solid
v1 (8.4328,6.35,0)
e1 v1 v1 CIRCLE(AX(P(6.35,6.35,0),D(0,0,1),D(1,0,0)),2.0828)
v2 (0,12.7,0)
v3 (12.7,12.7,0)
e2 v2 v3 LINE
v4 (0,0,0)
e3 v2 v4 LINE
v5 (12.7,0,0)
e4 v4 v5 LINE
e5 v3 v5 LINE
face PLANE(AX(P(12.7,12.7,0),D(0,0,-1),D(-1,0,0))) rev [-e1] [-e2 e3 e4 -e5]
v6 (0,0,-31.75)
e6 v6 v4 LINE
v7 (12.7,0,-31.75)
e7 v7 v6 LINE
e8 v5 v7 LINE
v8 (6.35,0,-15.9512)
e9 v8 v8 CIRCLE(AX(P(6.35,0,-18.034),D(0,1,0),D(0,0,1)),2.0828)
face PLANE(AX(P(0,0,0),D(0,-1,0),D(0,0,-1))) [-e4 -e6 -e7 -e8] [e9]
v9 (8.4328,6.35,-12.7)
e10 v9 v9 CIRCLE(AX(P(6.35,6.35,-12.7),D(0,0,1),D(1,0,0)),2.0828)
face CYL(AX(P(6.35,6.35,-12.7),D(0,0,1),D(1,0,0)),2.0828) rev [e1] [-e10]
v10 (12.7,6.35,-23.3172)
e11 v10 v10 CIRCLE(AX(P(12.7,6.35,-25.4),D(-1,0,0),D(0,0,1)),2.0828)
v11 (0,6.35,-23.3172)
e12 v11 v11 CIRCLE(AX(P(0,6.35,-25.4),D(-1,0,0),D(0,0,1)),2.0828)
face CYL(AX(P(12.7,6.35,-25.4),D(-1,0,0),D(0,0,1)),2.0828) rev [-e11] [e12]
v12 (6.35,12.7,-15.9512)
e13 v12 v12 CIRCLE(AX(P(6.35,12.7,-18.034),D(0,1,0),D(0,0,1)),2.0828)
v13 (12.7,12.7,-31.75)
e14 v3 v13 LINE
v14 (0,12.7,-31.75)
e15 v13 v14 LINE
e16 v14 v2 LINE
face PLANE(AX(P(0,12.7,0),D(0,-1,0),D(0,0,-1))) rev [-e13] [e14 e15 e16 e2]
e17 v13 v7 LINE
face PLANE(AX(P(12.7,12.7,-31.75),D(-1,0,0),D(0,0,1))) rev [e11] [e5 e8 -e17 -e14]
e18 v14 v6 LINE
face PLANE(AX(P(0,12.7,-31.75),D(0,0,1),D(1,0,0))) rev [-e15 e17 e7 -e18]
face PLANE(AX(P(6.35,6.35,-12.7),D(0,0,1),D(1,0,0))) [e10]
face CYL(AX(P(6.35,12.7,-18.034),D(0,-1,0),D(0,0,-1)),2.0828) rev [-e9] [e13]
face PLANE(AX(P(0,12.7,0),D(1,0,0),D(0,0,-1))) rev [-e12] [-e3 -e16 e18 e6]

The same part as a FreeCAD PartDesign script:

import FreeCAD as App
import Part
import Sketcher

V = App.Vector
Q = App.Units.Quantity

doc = App.newDocument("Part")
body = doc.addObject("PartDesign::Body", "Body")

# Sketch on XZ plane
sketch1 = doc.addObject("Sketcher::SketchObject", "Sketch")
body.addObject(sketch1)
sketch1.AttachmentSupport = (doc.XZ_Plane, [""])
sketch1.MapMode = "FlatFace"
sketch1.addGeometry([
    Part.LineSegment(V(0, -31.75, 0), V(0, 0, 0)),  # 0
    Part.LineSegment(V(0, 0, 0), V(12.7, 0, 0)),  # 1
    Part.LineSegment(V(12.7, 0, 0), V(12.7, -31.75, 0)),  # 2
    Part.LineSegment(V(12.7, -31.75, 0), V(0, -31.75, 0)),  # 3
    Part.Circle(V(6.35, -18.034, 0), V(0, 0, 1), 2.0828),  # 4
], False)
sketch1.addConstraint([
    Sketcher.Constraint("Coincident", 0, 2, 1, 1),
    Sketcher.Constraint("Coincident", 1, 2, 2, 1),
    Sketcher.Constraint("Coincident", 2, 2, 3, 1),
    Sketcher.Constraint("Coincident", 3, 2, 0, 1),
    Sketcher.Constraint("Vertical", 0),
    Sketcher.Constraint("Horizontal", 1),
    Sketcher.Constraint("Vertical", 2),
    Sketcher.Constraint("Horizontal", 3),
    Sketcher.Constraint("Coincident", 0, 2, -1, 1),
    Sketcher.Constraint("Diameter", 4, Q("0.164 in")),
    Sketcher.Constraint("DistanceX", 1, 1, 1, 2, Q("0.5 in")),
    Sketcher.Constraint("DistanceY", 0, 1, 0, 2, Q("1.25 in")),
    Sketcher.Constraint("DistanceX", -1, 1, 4, 3, Q("0.25 in")),
    Sketcher.Constraint("DistanceY", 4, 3, -1, 1, Q("0.71 in")),
])
pad1 = doc.addObject("PartDesign::Pad", "Pad")
body.addObject(pad1)
pad1.Profile = sketch1
pad1.Length = Q("0.5 in")
pad1.Reversed = True

# Sketch on XY plane
sketch2 = doc.addObject("Sketcher::SketchObject", "Sketch001")
body.addObject(sketch2)
sketch2.AttachmentSupport = (doc.XY_Plane, [""])
sketch2.MapMode = "FlatFace"
sketch2.addGeometry(Part.Circle(V(6.35, 6.35, 0), V(0, 0, 1), 2.0828), False)
sketch2.addConstraint([
    Sketcher.Constraint("Diameter", 0, Q("0.164 in")),
    Sketcher.Constraint("DistanceX", -1, 1, 0, 3, Q("0.25 in")),
    Sketcher.Constraint("DistanceY", -1, 1, 0, 3, Q("0.25 in")),
])
pocket1 = doc.addObject("PartDesign::Pocket", "Pocket")
body.addObject(pocket1)
pocket1.Profile = sketch2
pocket1.Length = Q("0.5 in")

# Sketch on YZ plane
sketch3 = doc.addObject("Sketcher::SketchObject", "Sketch002")
body.addObject(sketch3)
sketch3.AttachmentSupport = (doc.YZ_Plane, [""])
sketch3.MapMode = "FlatFace"
sketch3.addGeometry(Part.Circle(V(6.35, -25.4, 0), V(0, 0, 1), 2.0828), False)
sketch3.addConstraint([
    Sketcher.Constraint("Diameter", 0, Q("0.164 in")),
    Sketcher.Constraint("DistanceY", 0, 3, -1, 1, Q("1 in")),
    Sketcher.Constraint("DistanceX", -1, 1, 0, 3, Q("0.25 in")),
])
pocket2 = doc.addObject("PartDesign::Pocket", "Pocket001")
body.addObject(pocket2)
pocket2.Profile = sketch3
pocket2.Length = Q("0.5 in")
pocket2.Reversed = True

doc.recompute()
